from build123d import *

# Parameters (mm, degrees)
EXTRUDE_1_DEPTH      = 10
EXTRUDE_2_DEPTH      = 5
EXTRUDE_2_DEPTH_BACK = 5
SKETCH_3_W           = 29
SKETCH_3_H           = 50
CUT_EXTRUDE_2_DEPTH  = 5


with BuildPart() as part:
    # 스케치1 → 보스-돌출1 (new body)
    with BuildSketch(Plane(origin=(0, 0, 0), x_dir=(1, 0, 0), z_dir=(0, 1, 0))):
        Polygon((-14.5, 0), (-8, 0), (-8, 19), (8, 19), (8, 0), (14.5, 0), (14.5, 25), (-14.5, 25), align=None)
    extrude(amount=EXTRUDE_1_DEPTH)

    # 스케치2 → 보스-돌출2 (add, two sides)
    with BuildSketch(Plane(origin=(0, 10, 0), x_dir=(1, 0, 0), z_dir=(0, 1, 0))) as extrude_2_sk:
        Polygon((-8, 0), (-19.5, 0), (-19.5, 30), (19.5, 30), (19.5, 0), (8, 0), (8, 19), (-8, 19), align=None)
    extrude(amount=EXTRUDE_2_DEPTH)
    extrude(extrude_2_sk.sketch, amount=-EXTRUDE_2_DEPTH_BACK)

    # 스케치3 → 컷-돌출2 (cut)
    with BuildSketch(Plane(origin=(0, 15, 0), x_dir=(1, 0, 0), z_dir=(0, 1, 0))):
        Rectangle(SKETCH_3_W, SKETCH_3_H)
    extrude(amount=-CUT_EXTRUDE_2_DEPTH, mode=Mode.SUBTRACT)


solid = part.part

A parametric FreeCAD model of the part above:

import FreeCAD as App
import Part
import Sketcher

V = App.Vector
Q = App.Units.Quantity

doc = App.newDocument("Part")
body = doc.addObject("PartDesign::Body", "Body")

sketch1 = doc.addObject("Sketcher::SketchObject", "Sketch")
body.addObject(sketch1)
sketch1.AttachmentSupport = (doc.XZ_Plane, [""])
sketch1.MapMode = "FlatFace"
sketch1.addGeometry([
    Part.LineSegment(V(-14.5, 0, 0), V(-8, 0, 0)),
    Part.LineSegment(V(-8, 0, 0), V(-8, -19, 0)),
    Part.LineSegment(V(-8, -19, 0), V(8, -19, 0)),
    Part.LineSegment(V(8, -19, 0), V(8, 0, 0)),
    Part.LineSegment(V(8, 0, 0), V(14.5, 0, 0)),
    Part.LineSegment(V(14.5, 0, 0), V(14.5, -25, 0)),
    Part.LineSegment(V(14.5, -25, 0), V(-14.5, -25, 0)),
    Part.LineSegment(V(-14.5, -25, 0), V(-14.5, 0, 0)),
], False)
sketch1.addConstraint([
    Sketcher.Constraint("Coincident", 0, 2, 1, 1),
    Sketcher.Constraint("Coincident", 1, 2, 2, 1),
    Sketcher.Constraint("Coincident", 2, 2, 3, 1),
    Sketcher.Constraint("Coincident", 3, 2, 4, 1),
    Sketcher.Constraint("Coincident", 4, 2, 5, 1),
    Sketcher.Constraint("Coincident", 5, 2, 6, 1),
    Sketcher.Constraint("Coincident", 6, 2, 7, 1),
    Sketcher.Constraint("Coincident", 7, 2, 0, 1),
    Sketcher.Constraint("Horizontal", 0),
    Sketcher.Constraint("Vertical", 1),
    Sketcher.Constraint("Horizontal", 2),
    Sketcher.Constraint("Vertical", 3),
    Sketcher.Constraint("Horizontal", 4),
    Sketcher.Constraint("Vertical", 5),
    Sketcher.Constraint("Horizontal", 6),
    Sketcher.Constraint("Vertical", 7),
    Sketcher.Constraint("Symmetric", 0, 2, 3, 2, -1, 1),
    Sketcher.Constraint("Symmetric", 4, 2, 7, 2, -2),
    Sketcher.Constraint("DistanceX", 2, 1, 2, 2, Q("16 mm")),
    Sketcher.Constraint("DistanceX", 6, 2, 6, 1, Q("29 mm")),
    Sketcher.Constraint("DistanceY", 1, 2, 1, 1, Q("19 mm")),
    Sketcher.Constraint("DistanceY", 5, 2, 5, 1, Q("25 mm")),
])
pad1 = doc.addObject("PartDesign::Pad", "Pad")
body.addObject(pad1)
pad1.Profile = sketch1
pad1.Length = 10
pad1.Reversed = True

sketch2 = doc.addObject("Sketcher::SketchObject", "Sketch001")
body.addObject(sketch2)
sketch2.AttachmentSupport = (doc.XZ_Plane, [""])
sketch2.MapMode = "FlatFace"
sketch2.AttachmentOffset = App.Placement(V(0, 0, -10), App.Rotation())
sketch2.addGeometry([
    Part.LineSegment(V(-19.5, 0, 0), V(-8, 0, 0)),
    Part.LineSegment(V(-8, 0, 0), V(-8, -19, 0)),
    Part.LineSegment(V(-8, -19, 0), V(8, -19, 0)),
    Part.LineSegment(V(8, -19, 0), V(8, 0, 0)),
    Part.LineSegment(V(8, 0, 0), V(19.5, 0, 0)),
    Part.LineSegment(V(19.5, 0, 0), V(19.5, -30, 0)),
    Part.LineSegment(V(19.5, -30, 0), V(-19.5, -30, 0)),
    Part.LineSegment(V(-19.5, -30, 0), V(-19.5, 0, 0)),
], False)
sketch2.addConstraint([
    Sketcher.Constraint("Coincident", 0, 2, 1, 1),
    Sketcher.Constraint("Coincident", 1, 2, 2, 1),
    Sketcher.Constraint("Coincident", 2, 2, 3, 1),
    Sketcher.Constraint("Coincident", 3, 2, 4, 1),
    Sketcher.Constraint("Coincident", 4, 2, 5, 1),
    Sketcher.Constraint("Coincident", 5, 2, 6, 1),
    Sketcher.Constraint("Coincident", 6, 2, 7, 1),
    Sketcher.Constraint("Coincident", 7, 2, 0, 1),
    Sketcher.Constraint("Horizontal", 0),
    Sketcher.Constraint("Vertical", 1),
    Sketcher.Constraint("Horizontal", 2),
    Sketcher.Constraint("Vertical", 3),
    Sketcher.Constraint("Horizontal", 4),
    Sketcher.Constraint("Vertical", 5),
    Sketcher.Constraint("Horizontal", 6),
    Sketcher.Constraint("Vertical", 7),
    Sketcher.Constraint("Symmetric", 0, 2, 3, 2, -1, 1),
    Sketcher.Constraint("Symmetric", 4, 2, 7, 2, -2),
    Sketcher.Constraint("DistanceX", 2, 1, 2, 2, Q("16 mm")),
    Sketcher.Constraint("DistanceX", 6, 2, 6, 1, Q("39 mm")),
    Sketcher.Constraint("DistanceY", 1, 2, 1, 1, Q("19 mm")),
    Sketcher.Constraint("DistanceY", 5, 2, 5, 1, Q("30 mm")),
])
pad2 = doc.addObject("PartDesign::Pad", "Pad001")
body.addObject(pad2)
pad2.Profile = sketch2
pad2.Type = "TwoLengths"
pad2.Length = 5
pad2.Length2 = 5
pad2.Reversed = True

sketch3 = doc.addObject("Sketcher::SketchObject", "Sketch002")
body.addObject(sketch3)
sketch3.AttachmentSupport = (doc.XZ_Plane, [""])
sketch3.MapMode = "FlatFace"
sketch3.AttachmentOffset = App.Placement(V(0, 0, -15), App.Rotation())
sketch3.addGeometry([
    Part.LineSegment(V(-14.5, -25, 0), V(-14.5, 25, 0)),
    Part.LineSegment(V(-14.5, 25, 0), V(14.5, 25, 0)),
    Part.LineSegment(V(14.5, 25, 0), V(14.5, -25, 0)),
    Part.LineSegment(V(14.5, -25, 0), V(-14.5, -25, 0)),
], False)
sketch3.addConstraint([
    Sketcher.Constraint("Coincident", 0, 2, 1, 1),
    Sketcher.Constraint("Coincident", 1, 2, 2, 1),
    Sketcher.Constraint("Coincident", 2, 2, 3, 1),
    Sketcher.Constraint("Coincident", 3, 2, 0, 1),
    Sketcher.Constraint("Vertical", 0),
    Sketcher.Constraint("Horizontal", 1),
    Sketcher.Constraint("Vertical", 2),
    Sketcher.Constraint("Horizontal", 3),
    Sketcher.Constraint("Symmetric", 0, 2, 2, 2, -1, 1),
    Sketcher.Constraint("DistanceX", 1, 1, 1, 2, Q("29 mm")),
    Sketcher.Constraint("DistanceY", 0, 1, 0, 2, Q("50 mm")),
])
pocket1 = doc.addObject("PartDesign::Pocket", "Pocket")
body.addObject(pocket1)
pocket1.Profile = sketch3
pocket1.Length = 5
pocket1.Reversed = True

doc.recompute()
